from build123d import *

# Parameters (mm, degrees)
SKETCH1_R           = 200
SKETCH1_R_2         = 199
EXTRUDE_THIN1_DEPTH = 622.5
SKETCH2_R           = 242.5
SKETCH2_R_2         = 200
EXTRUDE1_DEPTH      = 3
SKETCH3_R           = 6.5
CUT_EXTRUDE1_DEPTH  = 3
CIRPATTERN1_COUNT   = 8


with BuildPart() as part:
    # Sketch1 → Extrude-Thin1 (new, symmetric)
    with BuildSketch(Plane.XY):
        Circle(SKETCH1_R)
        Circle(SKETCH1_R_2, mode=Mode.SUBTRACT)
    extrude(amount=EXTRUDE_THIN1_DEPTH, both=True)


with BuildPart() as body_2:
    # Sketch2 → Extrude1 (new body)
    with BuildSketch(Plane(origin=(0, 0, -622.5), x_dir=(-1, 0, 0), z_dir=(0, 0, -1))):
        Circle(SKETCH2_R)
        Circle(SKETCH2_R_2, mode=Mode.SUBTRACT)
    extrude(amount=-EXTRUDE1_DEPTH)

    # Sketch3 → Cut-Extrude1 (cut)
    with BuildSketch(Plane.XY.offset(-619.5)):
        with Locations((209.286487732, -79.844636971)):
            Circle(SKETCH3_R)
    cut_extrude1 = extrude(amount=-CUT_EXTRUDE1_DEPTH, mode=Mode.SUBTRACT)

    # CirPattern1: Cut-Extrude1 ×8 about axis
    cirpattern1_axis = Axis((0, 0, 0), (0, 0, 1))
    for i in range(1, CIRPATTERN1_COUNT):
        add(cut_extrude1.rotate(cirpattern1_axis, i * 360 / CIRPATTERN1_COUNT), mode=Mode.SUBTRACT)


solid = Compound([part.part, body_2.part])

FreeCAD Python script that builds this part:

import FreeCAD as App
import Part
import Sketcher

doc = App.newDocument("Part")
params = doc.addObject("Spreadsheet::Sheet", "Params")
for row, (alias, value) in enumerate([
    ("sketch1_diameter", "400 mm"),
    ("sketch1_diameter2", "398 mm"),
    ("pad1_length", "1245 mm"),
    ("sketch2_diameter", "485 mm"),
    ("sketch2_diameter2", "400 mm"),
    ("pad2_length", "3 mm"),
    ("sketch3_diameter", "13 mm"),
    ("pocket1_length", "3 mm"),
], start=1):
    params.set(f"A{row}", alias)
    params.set(f"B{row}", "=" + value)
    params.setAlias(f"B{row}", alias)

body = doc.addObject("PartDesign::Body", "Body")

sketch1 = doc.addObject("Sketcher::SketchObject", "Sketch")
body.addObject(sketch1)
sketch1.AttachmentSupport = (doc.XY_Plane, [""])
sketch1.MapMode = "FlatFace"
sketch1.addGeometry(Part.Circle(App.Vector(0, 0, 0), App.Vector(0, 0, 1), 200), False)
sketch1.addGeometry(Part.Circle(App.Vector(0, 0, 0), App.Vector(0, 0, 1), 199), False)
sketch1.addConstraint(Sketcher.Constraint("Coincident", 0, 3, -1, 1))
sketch1.addConstraint(Sketcher.Constraint("Coincident", 1, 3, -1, 1))
sketch1.addConstraint(Sketcher.Constraint("Diameter", 0, 400.0))
sketch1.addConstraint(Sketcher.Constraint("Diameter", 1, 398.0))
sketch1.setExpression("Constraints[2]", "Params.sketch1_diameter")
sketch1.setExpression("Constraints[3]", "Params.sketch1_diameter2")
pad1 = doc.addObject("PartDesign::Pad", "Pad")
body.addObject(pad1)
pad1.Profile = sketch1
pad1.setExpression("Length", "Params.pad1_length")
pad1.Midplane = True
body2 = doc.addObject("PartDesign::Body", "Body001")

sketch2 = doc.addObject("Sketcher::SketchObject", "Sketch001")
body2.addObject(sketch2)
sketch2.AttachmentSupport = (doc.getObject("XY_Plane001"), [""])
sketch2.MapMode = "FlatFace"
sketch2.AttachmentOffset = App.Placement(App.Vector(0, 0, -622.5), App.Rotation())
sketch2.addGeometry(Part.Circle(App.Vector(0, 0, 0), App.Vector(0, 0, 1), 242.5), False)
sketch2.addGeometry(Part.Circle(App.Vector(0, 0, 0), App.Vector(0, 0, 1), 200), False)
sketch2.addConstraint(Sketcher.Constraint("Coincident", 0, 3, -1, 1))
sketch2.addConstraint(Sketcher.Constraint("Coincident", 1, 3, -1, 1))
sketch2.addConstraint(Sketcher.Constraint("Diameter", 0, 485.0))
sketch2.addConstraint(Sketcher.Constraint("Diameter", 1, 400.0))
sketch2.setExpression("Constraints[2]", "Params.sketch2_diameter")
sketch2.setExpression("Constraints[3]", "Params.sketch2_diameter2")
pad2 = doc.addObject("PartDesign::Pad", "Pad001")
body2.addObject(pad2)
pad2.Profile = sketch2
pad2.setExpression("Length", "Params.pad2_length")

sketch3 = doc.addObject("Sketcher::SketchObject", "Sketch002")
body2.addObject(sketch3)
sketch3.AttachmentSupport = (doc.getObject("XY_Plane001"), [""])
sketch3.MapMode = "FlatFace"
sketch3.AttachmentOffset = App.Placement(App.Vector(0, 0, -619.5), App.Rotation())
sketch3.addGeometry(Part.Circle(App.Vector(209.286488, -79.844637, 0), App.Vector(0, 0, 1), 6.5), False)
sketch3.addConstraint(Sketcher.Constraint("Diameter", 0, 13.0))
sketch3.addConstraint(Sketcher.Constraint("DistanceX", -1, 1, 0, 3, 209.286488))
sketch3.addConstraint(Sketcher.Constraint("DistanceY", 0, 3, -1, 1, 79.844637))
sketch3.setExpression("Constraints[0]", "Params.sketch3_diameter")
pocket1 = doc.addObject("PartDesign::Pocket", "Pocket")
body2.addObject(pocket1)
pocket1.Profile = sketch3
pocket1.setExpression("Length", "Params.pocket1_length")
doc.recompute()

polarpattern = doc.addObject("PartDesign::PolarPattern", "PolarPattern")
body2.addObject(polarpattern)
polarpattern.Originals = [pocket1]
polarpattern.Axis = (doc.getObject("Z_Axis001"), [""])
polarpattern.Angle = 360
polarpattern.Occurrences = 8
body2.Tip = polarpattern

doc.recompute()
